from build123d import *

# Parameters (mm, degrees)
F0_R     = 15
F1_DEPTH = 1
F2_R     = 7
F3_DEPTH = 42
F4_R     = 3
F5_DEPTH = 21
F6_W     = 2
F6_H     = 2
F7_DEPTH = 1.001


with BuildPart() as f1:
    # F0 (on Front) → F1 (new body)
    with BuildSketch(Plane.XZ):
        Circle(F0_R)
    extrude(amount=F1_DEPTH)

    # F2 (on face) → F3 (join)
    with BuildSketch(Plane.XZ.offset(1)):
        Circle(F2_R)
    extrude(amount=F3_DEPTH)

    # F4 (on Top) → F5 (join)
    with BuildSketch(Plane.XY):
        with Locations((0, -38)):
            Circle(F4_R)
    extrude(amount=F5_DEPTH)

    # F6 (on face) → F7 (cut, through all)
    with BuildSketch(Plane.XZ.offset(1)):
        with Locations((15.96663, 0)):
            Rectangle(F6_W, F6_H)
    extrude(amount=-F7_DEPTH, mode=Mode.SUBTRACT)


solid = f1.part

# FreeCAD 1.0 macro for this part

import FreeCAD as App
import Part
import Sketcher

doc = App.newDocument("Part")
params = doc.addObject("Spreadsheet::Sheet", "Params")
for row, (alias, value) in enumerate([
    ("sketch1_diameter", "30 mm"),
    ("pad1_length", "1 mm"),
    ("sketch2_diameter", "14 mm"),
    ("pad2_length", "42 mm"),
    ("sketch3_diameter", "6 mm"),
    ("pad3_length", "21 mm"),
    ("sketch4_width", "2 mm"),
], start=1):
    params.set(f"A{row}", alias)
    params.set(f"B{row}", "=" + value)
    params.setAlias(f"B{row}", alias)

body = doc.addObject("PartDesign::Body", "Body")

sketch1 = doc.addObject("Sketcher::SketchObject", "Sketch")
body.addObject(sketch1)
sketch1.AttachmentSupport = (doc.XZ_Plane, [""])
sketch1.MapMode = "FlatFace"
sketch1.addGeometry(Part.Circle(App.Vector(0, 0, 0), App.Vector(0, 0, 1), 15), False)
sketch1.addConstraint(Sketcher.Constraint("Coincident", 0, 3, -1, 1))
sketch1.addConstraint(Sketcher.Constraint("Diameter", 0, 30.0))
sketch1.setExpression("Constraints[1]", "Params.sketch1_diameter")
pad1 = doc.addObject("PartDesign::Pad", "Pad")
body.addObject(pad1)
pad1.Profile = sketch1
pad1.setExpression("Length", "Params.pad1_length")

sketch2 = doc.addObject("Sketcher::SketchObject", "Sketch001")
body.addObject(sketch2)
sketch2.AttachmentSupport = (doc.XZ_Plane, [""])
sketch2.MapMode = "FlatFace"
sketch2.AttachmentOffset = App.Placement(App.Vector(0, 0, 1), App.Rotation())
sketch2.addGeometry(Part.Circle(App.Vector(0, 0, 0), App.Vector(0, 0, 1), 7), False)
sketch2.addConstraint(Sketcher.Constraint("Coincident", 0, 3, -1, 1))
sketch2.addConstraint(Sketcher.Constraint("Diameter", 0, 14.0))
sketch2.setExpression("Constraints[1]", "Params.sketch2_diameter")
pad2 = doc.addObject("PartDesign::Pad", "Pad001")
body.addObject(pad2)
pad2.Profile = sketch2
pad2.setExpression("Length", "Params.pad2_length")

sketch3 = doc.addObject("Sketcher::SketchObject", "Sketch002")
body.addObject(sketch3)
sketch3.AttachmentSupport = (doc.XY_Plane, [""])
sketch3.MapMode = "FlatFace"
sketch3.addGeometry(Part.Circle(App.Vector(0, -38, 0), App.Vector(0, 0, 1), 3), False)
sketch3.addConstraint(Sketcher.Constraint("PointOnObject", 0, 3, -2))
sketch3.addConstraint(Sketcher.Constraint("Diameter", 0, 6.0))
sketch3.addConstraint(Sketcher.Constraint("DistanceY", 0, 3, -1, 1, 38.0))
sketch3.setExpression("Constraints[1]", "Params.sketch3_diameter")
pad3 = doc.addObject("PartDesign::Pad", "Pad002")
body.addObject(pad3)
pad3.Profile = sketch3
pad3.setExpression("Length", "Params.pad3_length")

sketch4 = doc.addObject("Sketcher::SketchObject", "Sketch003")
body.addObject(sketch4)
sketch4.AttachmentSupport = (doc.XZ_Plane, [""])
sketch4.MapMode = "FlatFace"
sketch4.AttachmentOffset = App.Placement(App.Vector(0, 0, 1), App.Rotation())
sketch4.addGeometry(Part.LineSegment(App.Vector(15, 1, 0), App.Vector(15, -1, 0)), False)
sketch4.addGeometry(Part.LineSegment(App.Vector(15, -1, 0), App.Vector(17, -1, 0)), False)
sketch4.addGeometry(Part.LineSegment(App.Vector(17, -1, 0), App.Vector(17, 1, 0)), False)
sketch4.addGeometry(Part.LineSegment(App.Vector(17, 1, 0), App.Vector(15, 1, 0)), False)
sketch4.addConstraint(Sketcher.Constraint("Coincident", 0, 2, 1, 1))
sketch4.addConstraint(Sketcher.Constraint("Coincident", 1, 2, 2, 1))
sketch4.addConstraint(Sketcher.Constraint("Coincident", 2, 2, 3, 1))
sketch4.addConstraint(Sketcher.Constraint("Coincident", 3, 2, 0, 1))
sketch4.addConstraint(Sketcher.Constraint("Vertical", 0))
sketch4.addConstraint(Sketcher.Constraint("Horizontal", 1))
sketch4.addConstraint(Sketcher.Constraint("Vertical", 2))
sketch4.addConstraint(Sketcher.Constraint("Horizontal", 3))
sketch4.addConstraint(Sketcher.Constraint("Equal", 3, 0))
sketch4.addConstraint(Sketcher.Constraint("DistanceX", 1, 1, 1, 2, 2.0))
sketch4.addConstraint(Sketcher.Constraint("DistanceY", 0, 2, -1, 1, 1.0))
sketch4.addConstraint(Sketcher.Constraint("DistanceX", -1, 1, 0, 2, 14.96663))
sketch4.setExpression("Constraints[9]", "Params.sketch4_width")
pocket1 = doc.addObject("PartDesign::Pocket", "Pocket")
body.addObject(pocket1)
pocket1.Profile = sketch4
pocket1.Type = "ThroughAll"

doc.recompute()
